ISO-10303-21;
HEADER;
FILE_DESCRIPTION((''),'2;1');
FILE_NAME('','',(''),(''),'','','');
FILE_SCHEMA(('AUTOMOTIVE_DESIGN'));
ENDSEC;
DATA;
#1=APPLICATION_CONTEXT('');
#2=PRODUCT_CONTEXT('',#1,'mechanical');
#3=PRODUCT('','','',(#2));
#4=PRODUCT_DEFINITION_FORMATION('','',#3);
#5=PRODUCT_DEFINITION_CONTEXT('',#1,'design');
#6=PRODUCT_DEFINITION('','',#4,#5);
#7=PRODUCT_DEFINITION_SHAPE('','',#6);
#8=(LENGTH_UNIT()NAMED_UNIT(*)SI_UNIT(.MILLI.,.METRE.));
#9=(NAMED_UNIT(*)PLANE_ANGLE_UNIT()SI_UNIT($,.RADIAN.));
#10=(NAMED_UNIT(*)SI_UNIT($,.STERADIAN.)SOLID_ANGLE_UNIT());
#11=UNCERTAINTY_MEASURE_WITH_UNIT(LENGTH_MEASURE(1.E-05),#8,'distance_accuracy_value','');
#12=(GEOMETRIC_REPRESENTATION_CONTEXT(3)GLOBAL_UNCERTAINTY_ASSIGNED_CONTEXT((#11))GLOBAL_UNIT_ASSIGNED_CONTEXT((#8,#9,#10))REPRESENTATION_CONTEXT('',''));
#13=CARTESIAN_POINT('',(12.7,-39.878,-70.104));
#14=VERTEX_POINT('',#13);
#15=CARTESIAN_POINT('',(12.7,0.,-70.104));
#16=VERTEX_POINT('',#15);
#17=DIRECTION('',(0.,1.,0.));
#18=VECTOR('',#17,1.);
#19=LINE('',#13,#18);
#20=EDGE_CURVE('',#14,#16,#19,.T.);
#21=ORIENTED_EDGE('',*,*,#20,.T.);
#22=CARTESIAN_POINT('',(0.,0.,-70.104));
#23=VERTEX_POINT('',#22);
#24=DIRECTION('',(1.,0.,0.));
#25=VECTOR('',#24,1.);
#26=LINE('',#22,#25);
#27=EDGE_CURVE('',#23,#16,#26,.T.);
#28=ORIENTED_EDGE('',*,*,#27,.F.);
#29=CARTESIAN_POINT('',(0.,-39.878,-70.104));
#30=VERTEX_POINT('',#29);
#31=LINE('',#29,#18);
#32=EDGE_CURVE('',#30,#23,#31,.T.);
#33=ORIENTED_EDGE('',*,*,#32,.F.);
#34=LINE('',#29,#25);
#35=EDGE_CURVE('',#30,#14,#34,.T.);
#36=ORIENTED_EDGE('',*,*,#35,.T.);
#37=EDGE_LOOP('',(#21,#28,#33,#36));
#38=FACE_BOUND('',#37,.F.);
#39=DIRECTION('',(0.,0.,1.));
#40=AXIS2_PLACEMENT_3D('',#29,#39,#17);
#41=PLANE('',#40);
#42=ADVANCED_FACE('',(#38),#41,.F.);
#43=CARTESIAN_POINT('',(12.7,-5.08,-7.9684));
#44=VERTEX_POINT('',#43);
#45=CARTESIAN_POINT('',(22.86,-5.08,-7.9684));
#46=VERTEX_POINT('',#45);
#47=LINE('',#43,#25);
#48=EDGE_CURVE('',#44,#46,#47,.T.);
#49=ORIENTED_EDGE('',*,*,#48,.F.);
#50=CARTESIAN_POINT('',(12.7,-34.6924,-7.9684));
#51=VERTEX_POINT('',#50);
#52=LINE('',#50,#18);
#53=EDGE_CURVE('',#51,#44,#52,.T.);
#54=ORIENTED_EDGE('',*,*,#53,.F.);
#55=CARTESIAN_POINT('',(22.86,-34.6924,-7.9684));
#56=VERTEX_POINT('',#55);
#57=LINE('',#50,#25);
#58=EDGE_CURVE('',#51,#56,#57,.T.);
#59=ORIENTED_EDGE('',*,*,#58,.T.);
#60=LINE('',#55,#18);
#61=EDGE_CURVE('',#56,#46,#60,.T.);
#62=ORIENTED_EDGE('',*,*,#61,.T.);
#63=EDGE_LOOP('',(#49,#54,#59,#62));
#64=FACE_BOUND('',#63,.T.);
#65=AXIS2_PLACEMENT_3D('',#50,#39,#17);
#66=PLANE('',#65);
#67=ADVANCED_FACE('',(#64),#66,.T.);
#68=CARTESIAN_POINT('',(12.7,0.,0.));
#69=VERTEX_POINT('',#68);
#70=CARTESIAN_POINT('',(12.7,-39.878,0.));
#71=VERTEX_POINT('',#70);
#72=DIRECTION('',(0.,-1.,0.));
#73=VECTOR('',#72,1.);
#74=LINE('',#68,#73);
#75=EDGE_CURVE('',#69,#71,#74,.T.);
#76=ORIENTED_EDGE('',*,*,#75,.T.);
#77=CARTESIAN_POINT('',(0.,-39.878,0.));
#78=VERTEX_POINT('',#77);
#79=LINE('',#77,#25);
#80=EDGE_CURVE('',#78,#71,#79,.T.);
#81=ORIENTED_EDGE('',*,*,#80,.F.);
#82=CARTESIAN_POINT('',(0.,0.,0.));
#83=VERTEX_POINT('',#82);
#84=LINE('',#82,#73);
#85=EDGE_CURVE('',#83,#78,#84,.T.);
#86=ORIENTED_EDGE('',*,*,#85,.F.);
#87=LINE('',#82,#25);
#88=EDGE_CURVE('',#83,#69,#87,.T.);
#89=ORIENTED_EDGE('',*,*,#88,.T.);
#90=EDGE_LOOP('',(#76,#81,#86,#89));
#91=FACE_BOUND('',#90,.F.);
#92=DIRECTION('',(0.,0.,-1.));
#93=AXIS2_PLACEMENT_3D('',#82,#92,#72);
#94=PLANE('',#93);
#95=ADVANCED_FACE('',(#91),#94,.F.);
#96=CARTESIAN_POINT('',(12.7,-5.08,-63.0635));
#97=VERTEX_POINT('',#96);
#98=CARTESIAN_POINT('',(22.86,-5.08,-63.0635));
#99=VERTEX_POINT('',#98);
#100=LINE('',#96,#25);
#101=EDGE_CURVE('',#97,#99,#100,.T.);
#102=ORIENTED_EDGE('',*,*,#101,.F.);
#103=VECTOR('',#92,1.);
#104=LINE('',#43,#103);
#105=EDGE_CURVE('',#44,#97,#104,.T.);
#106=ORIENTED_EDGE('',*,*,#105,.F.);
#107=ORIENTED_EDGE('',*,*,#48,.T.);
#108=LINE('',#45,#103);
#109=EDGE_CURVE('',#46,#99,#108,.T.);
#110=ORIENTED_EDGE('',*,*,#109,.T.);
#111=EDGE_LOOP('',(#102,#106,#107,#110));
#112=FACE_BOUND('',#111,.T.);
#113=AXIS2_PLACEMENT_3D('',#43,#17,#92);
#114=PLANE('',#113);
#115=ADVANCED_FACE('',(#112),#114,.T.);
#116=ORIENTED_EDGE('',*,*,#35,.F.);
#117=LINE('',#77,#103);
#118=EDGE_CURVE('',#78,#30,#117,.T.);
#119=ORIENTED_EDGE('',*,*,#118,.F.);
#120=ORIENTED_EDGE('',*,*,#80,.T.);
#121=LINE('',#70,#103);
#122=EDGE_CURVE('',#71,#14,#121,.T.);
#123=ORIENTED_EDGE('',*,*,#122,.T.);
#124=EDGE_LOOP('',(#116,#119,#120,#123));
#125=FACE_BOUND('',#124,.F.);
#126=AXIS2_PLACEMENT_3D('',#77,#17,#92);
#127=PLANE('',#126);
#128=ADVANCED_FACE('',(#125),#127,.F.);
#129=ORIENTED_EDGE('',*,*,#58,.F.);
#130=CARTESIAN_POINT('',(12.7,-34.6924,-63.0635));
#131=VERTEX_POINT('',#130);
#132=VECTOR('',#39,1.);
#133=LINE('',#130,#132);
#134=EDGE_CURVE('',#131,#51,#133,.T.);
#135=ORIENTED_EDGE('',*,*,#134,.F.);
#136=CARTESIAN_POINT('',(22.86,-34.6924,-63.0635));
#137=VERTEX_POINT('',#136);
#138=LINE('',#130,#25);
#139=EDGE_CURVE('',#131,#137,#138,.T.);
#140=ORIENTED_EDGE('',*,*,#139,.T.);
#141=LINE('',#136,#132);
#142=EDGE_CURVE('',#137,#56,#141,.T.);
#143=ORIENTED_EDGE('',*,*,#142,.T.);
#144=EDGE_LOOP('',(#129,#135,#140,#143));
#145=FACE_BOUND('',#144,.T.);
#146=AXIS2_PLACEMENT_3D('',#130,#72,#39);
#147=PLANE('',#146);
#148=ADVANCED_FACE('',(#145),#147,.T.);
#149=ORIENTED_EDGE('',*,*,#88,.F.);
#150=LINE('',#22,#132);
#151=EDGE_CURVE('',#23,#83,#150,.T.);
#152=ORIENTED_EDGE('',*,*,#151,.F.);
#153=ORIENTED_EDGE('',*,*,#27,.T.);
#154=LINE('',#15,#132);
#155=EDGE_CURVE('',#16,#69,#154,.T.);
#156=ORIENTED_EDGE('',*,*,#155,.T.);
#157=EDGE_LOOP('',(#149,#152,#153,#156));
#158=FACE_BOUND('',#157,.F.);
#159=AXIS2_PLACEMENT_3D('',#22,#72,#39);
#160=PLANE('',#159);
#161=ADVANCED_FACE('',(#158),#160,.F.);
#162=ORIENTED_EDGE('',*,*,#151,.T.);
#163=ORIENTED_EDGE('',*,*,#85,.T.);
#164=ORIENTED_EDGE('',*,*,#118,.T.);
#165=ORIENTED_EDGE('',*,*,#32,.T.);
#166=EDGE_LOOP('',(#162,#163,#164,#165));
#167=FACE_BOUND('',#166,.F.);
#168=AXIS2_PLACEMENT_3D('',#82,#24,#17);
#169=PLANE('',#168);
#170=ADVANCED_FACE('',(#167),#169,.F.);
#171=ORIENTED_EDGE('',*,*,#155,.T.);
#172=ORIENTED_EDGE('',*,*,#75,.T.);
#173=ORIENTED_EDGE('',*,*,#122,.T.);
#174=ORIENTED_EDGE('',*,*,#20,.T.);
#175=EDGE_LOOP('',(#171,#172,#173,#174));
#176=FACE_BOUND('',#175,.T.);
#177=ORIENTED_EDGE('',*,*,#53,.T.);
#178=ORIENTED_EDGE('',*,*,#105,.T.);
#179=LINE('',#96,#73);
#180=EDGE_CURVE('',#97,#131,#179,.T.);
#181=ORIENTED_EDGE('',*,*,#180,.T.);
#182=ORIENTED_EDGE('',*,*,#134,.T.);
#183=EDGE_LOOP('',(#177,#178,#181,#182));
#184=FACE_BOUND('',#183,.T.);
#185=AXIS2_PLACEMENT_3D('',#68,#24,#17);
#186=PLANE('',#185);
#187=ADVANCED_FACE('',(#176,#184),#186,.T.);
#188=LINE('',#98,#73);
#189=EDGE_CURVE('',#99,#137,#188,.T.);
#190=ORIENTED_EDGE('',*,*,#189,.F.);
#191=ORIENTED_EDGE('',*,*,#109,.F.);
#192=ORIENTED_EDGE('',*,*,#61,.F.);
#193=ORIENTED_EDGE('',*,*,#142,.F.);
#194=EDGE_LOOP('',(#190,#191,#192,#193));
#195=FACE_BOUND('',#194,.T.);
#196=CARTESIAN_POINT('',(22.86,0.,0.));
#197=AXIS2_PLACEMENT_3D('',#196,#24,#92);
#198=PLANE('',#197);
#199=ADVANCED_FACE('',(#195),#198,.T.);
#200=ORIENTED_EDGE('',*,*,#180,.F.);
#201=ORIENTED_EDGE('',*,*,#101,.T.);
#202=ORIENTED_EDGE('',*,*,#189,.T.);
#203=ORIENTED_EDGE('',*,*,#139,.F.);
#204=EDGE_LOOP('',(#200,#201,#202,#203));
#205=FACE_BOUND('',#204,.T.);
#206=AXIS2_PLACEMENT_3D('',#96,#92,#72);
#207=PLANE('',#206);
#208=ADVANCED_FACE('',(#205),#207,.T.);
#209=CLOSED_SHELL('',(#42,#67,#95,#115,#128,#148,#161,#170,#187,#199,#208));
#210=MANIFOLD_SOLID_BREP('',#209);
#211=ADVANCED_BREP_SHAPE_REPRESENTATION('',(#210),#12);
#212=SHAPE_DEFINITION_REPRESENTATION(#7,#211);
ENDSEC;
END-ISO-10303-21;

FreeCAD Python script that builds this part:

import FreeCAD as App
import Part
import Sketcher

V = App.Vector
Q = App.Units.Quantity


def add_polygon(sketch, points):
    """Adds a closed chain of lines whose ends are joined by coincident constraints."""
    first, n = sketch.GeometryCount, len(points)
    for a, b in zip(points, points[1:] + points[:1]):
        sketch.addGeometry(Part.LineSegment(App.Vector(*a, 0), App.Vector(*b, 0)), False)
    for i in range(n):
        sketch.addConstraint(Sketcher.Constraint("Coincident", first + i, 2, first + (i + 1) % n, 1))

doc = App.newDocument("Part")
body = doc.addObject("PartDesign::Body", "Body")

# Sketch on YZ plane
sketch1 = doc.addObject("Sketcher::SketchObject", "Sketch")
body.addObject(sketch1)
sketch1.AttachmentSupport = (doc.YZ_Plane, [""])
sketch1.MapMode = "FlatFace"
add_polygon(sketch1, [(0, -70), (0, 0), (-40, 0), (-40, -70)])  # lines 0-3
sketch1.addConstraint(Sketcher.Constraint("Vertical", 0))
sketch1.addConstraint(Sketcher.Constraint("Horizontal", 1))
sketch1.addConstraint(Sketcher.Constraint("Vertical", 2))
sketch1.addConstraint(Sketcher.Constraint("Horizontal", 3))
sketch1.addConstraint(Sketcher.Constraint("Coincident", 0, 2, -1, 1))
sketch1.addConstraint(Sketcher.Constraint("DistanceX", 1, 2, 1, 1, Q("1.57 in")))
sketch1.addConstraint(Sketcher.Constraint("DistanceY", 0, 1, 0, 2, Q("2.76 in")))
pad1 = doc.addObject("PartDesign::Pad", "Pad")
body.addObject(pad1)
pad1.Profile = sketch1
pad1.Length = Q("0.5 in")

# Sketch on YZ plane
sketch2 = doc.addObject("Sketcher::SketchObject", "Sketch001")
body.addObject(sketch2)
sketch2.AttachmentSupport = (doc.YZ_Plane, [""])
sketch2.MapMode = "FlatFace"
sketch2.AttachmentOffset = App.Placement(V(0, 0, 0.5 * 25.4), App.Rotation())
add_polygon(sketch2, [(-5, -63), (-5, -8), (-35, -8), (-35, -63)])  # lines 0-3
sketch2.addConstraint(Sketcher.Constraint("Vertical", 0))
sketch2.addConstraint(Sketcher.Constraint("Horizontal", 1))
sketch2.addConstraint(Sketcher.Constraint("Vertical", 2))
sketch2.addConstraint(Sketcher.Constraint("Horizontal", 3))
sketch2.addConstraint(Sketcher.Constraint("DistanceX", 0, 2, -1, 1, Q("0.2 in")))
sketch2.addConstraint(Sketcher.Constraint("DistanceY", 0, 1, 0, 2, Q("2.1691 in")))
sketch2.addConstraint(Sketcher.Constraint("DistanceX", 1, 2, 1, 1, Q("29.6124 mm")))
sketch2.addConstraint(Sketcher.Constraint("DistanceY", 0, 2, -1, 1, Q("7.9684 mm")))
pad2 = doc.addObject("PartDesign::Pad", "Pad001")
body.addObject(pad2)
pad2.Profile = sketch2
pad2.Length = Q("0.4 in")

doc.recompute()
